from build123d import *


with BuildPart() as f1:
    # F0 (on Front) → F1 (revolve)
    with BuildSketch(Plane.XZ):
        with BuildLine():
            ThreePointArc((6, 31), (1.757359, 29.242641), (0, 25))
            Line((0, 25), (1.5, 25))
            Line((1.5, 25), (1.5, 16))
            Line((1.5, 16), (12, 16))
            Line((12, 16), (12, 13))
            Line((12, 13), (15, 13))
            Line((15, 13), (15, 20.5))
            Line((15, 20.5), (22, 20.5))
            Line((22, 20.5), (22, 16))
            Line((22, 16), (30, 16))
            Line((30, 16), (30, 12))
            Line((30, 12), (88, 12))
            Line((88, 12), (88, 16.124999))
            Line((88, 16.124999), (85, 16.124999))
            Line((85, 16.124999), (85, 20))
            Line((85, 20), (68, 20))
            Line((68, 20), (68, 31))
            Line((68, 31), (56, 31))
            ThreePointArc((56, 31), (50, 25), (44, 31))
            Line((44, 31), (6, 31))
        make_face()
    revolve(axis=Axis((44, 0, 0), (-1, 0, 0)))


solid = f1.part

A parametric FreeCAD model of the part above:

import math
import FreeCAD as App
import Part
import Sketcher

V = App.Vector
Q = App.Units.Quantity

doc = App.newDocument("Part")
params = doc.addObject("Spreadsheet::Sheet", "Params")
for row, (alias, value) in enumerate([
    ("sketch1_radius", "5.999999 mm"),
    ("sketch1_width", "3 mm"),
    ("sketch1_width2", "7 mm"),
    ("sketch1_width3", "8 mm"),
    ("sketch1_width4", "58 mm"),
    ("revolution_angle", "360 deg"),
], start=1):
    params.set(f"A{row}", alias)
    params.set(f"B{row}", "=" + value)
    params.setAlias(f"B{row}", alias)

body = doc.addObject("PartDesign::Body", "Body")

# Sketch on XZ plane
sketch1 = body.newObject("Sketcher::SketchObject", "Sketch")
sketch1.AttachmentSupport = (doc.getObject("XZ_Plane"), [""])
sketch1.MapMode = "FlatFace"
sketch1.addGeometry([
    Part.ArcOfCircle(Part.Circle(V(5.999999, 25.000001, 0), V(0, 0, 1), 5.999999), math.radians(89.99999), math.radians(180.00001)),  # 0
    Part.LineSegment(V(0, 25, 0), V(1.5, 25, 0)),  # 1
    Part.LineSegment(V(1.5, 25, 0), V(1.5, 16, 0)),  # 2
    Part.LineSegment(V(1.5, 16, 0), V(12, 16, 0)),  # 3
    Part.LineSegment(V(12, 16, 0), V(12, 13, 0)),  # 4
    Part.LineSegment(V(12, 13, 0), V(15, 13, 0)),  # 5
    Part.LineSegment(V(15, 13, 0), V(15, 20.5, 0)),  # 6
    Part.LineSegment(V(15, 20.5, 0), V(22, 20.5, 0)),  # 7
    Part.LineSegment(V(22, 20.5, 0), V(22, 16, 0)),  # 8
    Part.LineSegment(V(22, 16, 0), V(30, 16, 0)),  # 9
    Part.LineSegment(V(30, 16, 0), V(30, 12, 0)),  # 10
    Part.LineSegment(V(30, 12, 0), V(88, 12, 0)),  # 11
    Part.LineSegment(V(88, 12, 0), V(88, 16.124999, 0)),  # 12
    Part.LineSegment(V(88, 16.124999, 0), V(85, 16.124999, 0)),  # 13
    Part.LineSegment(V(85, 16.124999, 0), V(85, 20, 0)),  # 14
    Part.LineSegment(V(85, 20, 0), V(68, 20, 0)),  # 15
    Part.LineSegment(V(68, 20, 0), V(68, 31, 0)),  # 16
    Part.LineSegment(V(68, 31, 0), V(56, 31, 0)),  # 17
    Part.ArcOfCircle(Part.Circle(V(50, 31, 0), V(0, 0, 1), 6), math.radians(180), math.radians(360)),  # 18
    Part.LineSegment(V(44, 31, 0), V(6, 31, 0)),  # 19
], False)
sketch1.addConstraint([
    Sketcher.Constraint("Coincident", 0, 2, 1, 1),
    Sketcher.Constraint("Coincident", 1, 2, 2, 1),
    Sketcher.Constraint("Coincident", 2, 2, 3, 1),
    Sketcher.Constraint("Coincident", 3, 2, 4, 1),
    Sketcher.Constraint("Coincident", 4, 2, 5, 1),
    Sketcher.Constraint("Coincident", 5, 2, 6, 1),
    Sketcher.Constraint("Coincident", 6, 2, 7, 1),
    Sketcher.Constraint("Coincident", 7, 2, 8, 1),
    Sketcher.Constraint("Coincident", 8, 2, 9, 1),
    Sketcher.Constraint("Coincident", 9, 2, 10, 1),
    Sketcher.Constraint("Coincident", 10, 2, 11, 1),
    Sketcher.Constraint("Coincident", 11, 2, 12, 1),
    Sketcher.Constraint("Coincident", 12, 2, 13, 1),
    Sketcher.Constraint("Coincident", 13, 2, 14, 1),
    Sketcher.Constraint("Coincident", 14, 2, 15, 1),
    Sketcher.Constraint("Coincident", 15, 2, 16, 1),
    Sketcher.Constraint("Coincident", 16, 2, 17, 1),
    Sketcher.Constraint("Coincident", 17, 2, 18, 2),
    Sketcher.Constraint("Coincident", 18, 1, 19, 1),
    Sketcher.Constraint("Tangent", 19, 2, 0, 1),
    Sketcher.Constraint("Horizontal", 1),
    Sketcher.Constraint("Vertical", 2),
    Sketcher.Constraint("Horizontal", 3),
    Sketcher.Constraint("Vertical", 4),
    Sketcher.Constraint("Horizontal", 5),
    Sketcher.Constraint("Vertical", 6),
    Sketcher.Constraint("Horizontal", 7),
    Sketcher.Constraint("Vertical", 8),
    Sketcher.Constraint("Horizontal", 9),
    Sketcher.Constraint("Vertical", 10),
    Sketcher.Constraint("Horizontal", 11),
    Sketcher.Constraint("Vertical", 12),
    Sketcher.Constraint("Horizontal", 13),
    Sketcher.Constraint("Vertical", 14),
    Sketcher.Constraint("Horizontal", 15),
    Sketcher.Constraint("Vertical", 16),
    Sketcher.Constraint("Horizontal", 17),
    Sketcher.Constraint("Horizontal", 19),
    Sketcher.Constraint("Equal", 0, 18),
    Sketcher.Constraint("PointOnObject", 0, 2, -2),
    Sketcher.Constraint("Horizontal", 3, 2, 8, 2),
    Sketcher.Constraint("Horizontal", 18, 3, 16, 2),
    Sketcher.Constraint("Horizontal", 17, 2, 18, 1),
    Sketcher.Constraint("Equal", 5, 13),
    Sketcher.Constraint("Equal", 13, 4),
    Sketcher.Constraint("Radius", 0, Q("5.999999 mm")),
    Sketcher.Constraint("DistanceX", 5, 1, 5, 2, Q("3 mm")),
    Sketcher.Constraint("DistanceX", 7, 1, 7, 2, Q("7 mm")),
    Sketcher.Constraint("DistanceX", 9, 1, 9, 2, Q("8 mm")),
    Sketcher.Constraint("DistanceX", 11, 1, 11, 2, Q("58 mm")),
    Sketcher.Constraint("DistanceX", 15, 2, 15, 1, Q("17 mm")),
    Sketcher.Constraint("DistanceX", 17, 2, 17, 1, Q("12 mm")),
    Sketcher.Constraint("DistanceX", 19, 2, 19, 1, Q("38 mm")),
    Sketcher.Constraint("DistanceY", 2, 2, 2, 1, Q("9 mm")),
    Sketcher.Constraint("DistanceY", 10, 2, 10, 1, Q("4 mm")),
    Sketcher.Constraint("DistanceY", 16, 1, 16, 2, Q("11 mm")),
    Sketcher.Constraint("DistanceX", 1, 1, 1, 2, Q("1.5 mm")),
    Sketcher.Constraint("DistanceY", 6, 1, 6, 2, Q("7.5 mm")),
    Sketcher.Constraint("DistanceY", -1, 1, 0, 3, Q("25.000001 mm")),
    Sketcher.Constraint("DistanceY", -1, 1, 0, 2, Q("25 mm")),
    Sketcher.Constraint("DistanceY", 12, 1, 12, 2, Q("4.124999 mm")),
])
sketch1.setExpression("Constraints[45]", "Params.sketch1_radius")
sketch1.setExpression("Constraints[46]", "Params.sketch1_width")
sketch1.setExpression("Constraints[47]", "Params.sketch1_width2")
sketch1.setExpression("Constraints[48]", "Params.sketch1_width3")
sketch1.setExpression("Constraints[49]", "Params.sketch1_width4")
revolution = body.newObject("PartDesign::Revolution", "Revolution")
revolution.Profile = sketch1
revolution.ReferenceAxis = (sketch1, ["H_Axis"])
revolution.setExpression("Angle", "Params.revolution_angle")

doc.recompute()
